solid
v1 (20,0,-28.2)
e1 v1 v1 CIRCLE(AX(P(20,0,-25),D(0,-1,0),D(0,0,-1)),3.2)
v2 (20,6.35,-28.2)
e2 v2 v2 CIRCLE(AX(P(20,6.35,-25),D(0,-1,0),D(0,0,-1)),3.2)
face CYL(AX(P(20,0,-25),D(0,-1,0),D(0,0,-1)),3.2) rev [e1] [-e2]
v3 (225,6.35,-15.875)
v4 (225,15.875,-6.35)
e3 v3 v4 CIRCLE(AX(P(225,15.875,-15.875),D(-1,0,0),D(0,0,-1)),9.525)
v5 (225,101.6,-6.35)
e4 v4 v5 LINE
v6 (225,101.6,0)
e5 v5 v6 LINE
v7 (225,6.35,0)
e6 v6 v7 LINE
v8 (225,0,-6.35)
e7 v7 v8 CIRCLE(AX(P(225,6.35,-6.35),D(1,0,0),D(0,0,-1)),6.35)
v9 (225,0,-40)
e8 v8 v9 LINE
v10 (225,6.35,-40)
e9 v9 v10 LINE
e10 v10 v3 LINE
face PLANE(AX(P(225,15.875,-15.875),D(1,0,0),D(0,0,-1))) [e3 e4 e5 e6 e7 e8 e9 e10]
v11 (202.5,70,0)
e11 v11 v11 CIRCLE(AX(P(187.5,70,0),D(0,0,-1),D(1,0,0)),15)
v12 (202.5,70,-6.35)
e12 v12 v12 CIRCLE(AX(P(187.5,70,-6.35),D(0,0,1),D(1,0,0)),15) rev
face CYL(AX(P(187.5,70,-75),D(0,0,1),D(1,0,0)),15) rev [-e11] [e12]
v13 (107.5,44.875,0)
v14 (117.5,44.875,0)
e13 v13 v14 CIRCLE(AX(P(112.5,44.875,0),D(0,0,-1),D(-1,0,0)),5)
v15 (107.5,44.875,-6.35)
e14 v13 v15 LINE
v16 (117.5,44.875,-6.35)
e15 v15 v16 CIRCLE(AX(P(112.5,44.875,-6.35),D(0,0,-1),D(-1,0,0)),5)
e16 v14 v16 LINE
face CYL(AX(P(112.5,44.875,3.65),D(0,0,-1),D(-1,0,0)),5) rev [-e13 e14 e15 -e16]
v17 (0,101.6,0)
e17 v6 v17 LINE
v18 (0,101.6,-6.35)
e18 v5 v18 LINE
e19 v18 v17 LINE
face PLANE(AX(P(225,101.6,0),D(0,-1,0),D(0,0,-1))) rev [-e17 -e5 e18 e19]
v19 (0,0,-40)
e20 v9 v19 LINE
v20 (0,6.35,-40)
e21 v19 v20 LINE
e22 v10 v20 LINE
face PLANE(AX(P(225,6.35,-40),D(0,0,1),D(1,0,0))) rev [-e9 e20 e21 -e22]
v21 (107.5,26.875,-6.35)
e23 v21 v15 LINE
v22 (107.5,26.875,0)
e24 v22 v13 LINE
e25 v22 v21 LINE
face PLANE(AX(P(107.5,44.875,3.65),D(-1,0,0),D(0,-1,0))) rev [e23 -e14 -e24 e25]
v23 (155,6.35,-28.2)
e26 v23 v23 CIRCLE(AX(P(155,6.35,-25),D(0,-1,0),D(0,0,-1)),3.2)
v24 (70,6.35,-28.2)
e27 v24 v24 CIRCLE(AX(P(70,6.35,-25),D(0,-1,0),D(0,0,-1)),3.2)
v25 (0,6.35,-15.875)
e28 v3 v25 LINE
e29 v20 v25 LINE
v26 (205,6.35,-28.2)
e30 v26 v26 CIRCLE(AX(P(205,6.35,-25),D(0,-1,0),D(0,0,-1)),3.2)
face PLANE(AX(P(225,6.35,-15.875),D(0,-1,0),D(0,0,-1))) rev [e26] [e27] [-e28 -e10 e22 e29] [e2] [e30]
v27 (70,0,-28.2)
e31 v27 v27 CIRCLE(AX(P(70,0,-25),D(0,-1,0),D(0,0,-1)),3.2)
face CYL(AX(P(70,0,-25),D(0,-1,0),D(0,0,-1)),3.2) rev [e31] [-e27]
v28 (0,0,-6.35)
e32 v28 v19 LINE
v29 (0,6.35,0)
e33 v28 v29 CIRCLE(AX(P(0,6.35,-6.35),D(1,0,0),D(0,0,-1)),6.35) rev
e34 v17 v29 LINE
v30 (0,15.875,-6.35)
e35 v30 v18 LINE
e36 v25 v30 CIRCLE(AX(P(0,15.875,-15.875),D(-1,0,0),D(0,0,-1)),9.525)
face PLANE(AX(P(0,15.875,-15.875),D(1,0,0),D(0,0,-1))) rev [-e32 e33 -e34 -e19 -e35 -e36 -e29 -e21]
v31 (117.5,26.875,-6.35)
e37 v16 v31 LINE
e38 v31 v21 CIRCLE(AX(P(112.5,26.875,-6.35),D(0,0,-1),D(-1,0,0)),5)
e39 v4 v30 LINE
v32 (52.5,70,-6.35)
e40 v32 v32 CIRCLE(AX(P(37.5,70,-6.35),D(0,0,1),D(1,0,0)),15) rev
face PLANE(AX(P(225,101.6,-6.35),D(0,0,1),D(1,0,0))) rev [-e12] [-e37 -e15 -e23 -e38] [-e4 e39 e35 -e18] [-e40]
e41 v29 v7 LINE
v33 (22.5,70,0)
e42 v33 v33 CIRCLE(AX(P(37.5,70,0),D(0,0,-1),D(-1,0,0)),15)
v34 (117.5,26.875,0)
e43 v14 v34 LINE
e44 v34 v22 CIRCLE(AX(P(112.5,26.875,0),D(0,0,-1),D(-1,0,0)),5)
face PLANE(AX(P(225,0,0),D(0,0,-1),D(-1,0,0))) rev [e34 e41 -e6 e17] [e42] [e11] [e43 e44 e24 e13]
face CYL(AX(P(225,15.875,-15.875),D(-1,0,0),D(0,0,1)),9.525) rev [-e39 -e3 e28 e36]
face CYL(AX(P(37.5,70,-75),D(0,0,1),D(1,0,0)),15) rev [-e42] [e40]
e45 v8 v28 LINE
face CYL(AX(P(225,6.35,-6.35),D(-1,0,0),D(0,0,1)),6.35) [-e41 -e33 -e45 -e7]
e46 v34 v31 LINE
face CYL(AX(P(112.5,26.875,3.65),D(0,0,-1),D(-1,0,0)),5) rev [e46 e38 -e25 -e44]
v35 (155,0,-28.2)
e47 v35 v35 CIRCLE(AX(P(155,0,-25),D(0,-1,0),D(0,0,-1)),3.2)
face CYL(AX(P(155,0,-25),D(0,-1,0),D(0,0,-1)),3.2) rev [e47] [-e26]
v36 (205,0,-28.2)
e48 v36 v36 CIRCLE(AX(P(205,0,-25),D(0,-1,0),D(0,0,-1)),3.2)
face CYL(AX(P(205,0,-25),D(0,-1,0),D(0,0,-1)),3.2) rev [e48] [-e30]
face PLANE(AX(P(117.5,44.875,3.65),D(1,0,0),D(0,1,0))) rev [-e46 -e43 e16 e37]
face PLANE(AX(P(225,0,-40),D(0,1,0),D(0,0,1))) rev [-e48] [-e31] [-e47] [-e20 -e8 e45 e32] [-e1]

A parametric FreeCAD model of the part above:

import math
import FreeCAD as App
import Part
import Sketcher

V = App.Vector


def edges_at(feature, points):
    """Names of the edges that pass closest to the given points."""
    edges = feature.Shape.Edges
    near = lambda p: min(range(len(edges)), key=lambda i: edges[i].distToShape(Part.Vertex(*p))[0])
    return sorted({f"Edge{near(p) + 1}" for p in points})

doc = App.newDocument("Part")
body = doc.addObject("PartDesign::Body", "Body")

# Sketch on YZ plane
sketch1 = body.newObject("Sketcher::SketchObject", "Sketch")
sketch1.AttachmentSupport = (doc.getObject("YZ_Plane"), [""])
sketch1.MapMode = "FlatFace"
sketch1.addGeometry(Part.LineSegment(V(102, 0, 0), V(0, 0, 0)), False)
sketch1.addGeometry(Part.LineSegment(V(0, 0, 0), V(0, -40, 0)), False)
sketch1.addGeometry(Part.LineSegment(V(0, -40, 0), V(6, -40, 0)), False)
sketch1.addGeometry(Part.LineSegment(V(6, -40, 0), V(6, -16, 0)), False)
sketch1.addGeometry(Part.ArcOfCircle(Part.Circle(V(16, -16, 0), V(0, 0, 1), 10), math.radians(90), math.radians(180)), False)
sketch1.addGeometry(Part.LineSegment(V(16, -6, 0), V(102, -6, 0)), False)
sketch1.addGeometry(Part.LineSegment(V(102, -6, 0), V(102, 0, 0)), False)
sketch1.addConstraint(Sketcher.Constraint("Coincident", 0, 2, 1, 1))
sketch1.addConstraint(Sketcher.Constraint("Coincident", 1, 2, 2, 1))
sketch1.addConstraint(Sketcher.Constraint("Coincident", 2, 2, 3, 1))
sketch1.addConstraint(Sketcher.Constraint("Tangent", 3, 2, 4, 2))
sketch1.addConstraint(Sketcher.Constraint("Tangent", 4, 1, 5, 1))
sketch1.addConstraint(Sketcher.Constraint("Coincident", 5, 2, 6, 1))
sketch1.addConstraint(Sketcher.Constraint("Coincident", 6, 2, 0, 1))
sketch1.addConstraint(Sketcher.Constraint("Horizontal", 0))
sketch1.addConstraint(Sketcher.Constraint("Vertical", 1))
sketch1.addConstraint(Sketcher.Constraint("Horizontal", 2))
sketch1.addConstraint(Sketcher.Constraint("Vertical", 3))
sketch1.addConstraint(Sketcher.Constraint("Horizontal", 5))
sketch1.addConstraint(Sketcher.Constraint("Vertical", 6))
sketch1.addConstraint(Sketcher.Constraint("Coincident", 0, 2, -1, 1))
sketch1.addConstraint(Sketcher.Constraint("Equal", 2, 6))
sketch1.addConstraint(Sketcher.Constraint("DistanceY", 1, 2, 1, 1, 40.0))
sketch1.addConstraint(Sketcher.Constraint("DistanceX", 0, 2, 0, 1, 101.6))
sketch1.addConstraint(Sketcher.Constraint("Radius", 4, 9.525))
sketch1.addConstraint(Sketcher.Constraint("DistanceX", 2, 1, 2, 2, 6.35))
pad1 = body.newObject("PartDesign::Pad", "Pad")
pad1.Profile = sketch1
pad1.Length = 225
doc.recompute()

fillet = body.newObject("PartDesign::Fillet", "Fillet")
fillet.Base = (pad1, edges_at(pad1, [(112.5, 0, 0)]))
fillet.Radius = 6.35

# Sketch on XY plane
sketch2 = body.newObject("Sketcher::SketchObject", "Sketch001")
sketch2.AttachmentSupport = (doc.getObject("XY_Plane"), [""])
sketch2.MapMode = "FlatFace"
sketch2.addGeometry(Part.Circle(V(38, 70, 0), V(0, 0, 1), 15), False)
sketch2.addGeometry(Part.Circle(V(188, 70, 0), V(0, 0, 1), 15), False)
sketch2.addConstraint(Sketcher.Constraint("Equal", 0, 1))
sketch2.addConstraint(Sketcher.Constraint("Horizontal", 0, 3, 1, 3))
sketch2.addConstraint(Sketcher.Constraint("Diameter", 0, 30.0))
sketch2.addConstraint(Sketcher.Constraint("DistanceY", -1, 1, 0, 3, 70.0))
sketch2.addConstraint(Sketcher.Constraint("DistanceX", 0, 3, 1, 3, 150.0))
sketch2.addConstraint(Sketcher.Constraint("DistanceX", -1, 1, 0, 3, 37.5))
pocket1 = body.newObject("PartDesign::Pocket", "Pocket")
pocket1.Profile = sketch2
pocket1.Length = 75

# Sketch on XY plane
sketch3 = body.newObject("Sketcher::SketchObject", "Sketch002")
sketch3.AttachmentSupport = (doc.getObject("XY_Plane"), [""])
sketch3.MapMode = "FlatFace"
sketch3.AttachmentOffset = App.Placement(V(0, 0, -6.35), App.Rotation())
sketch3.addGeometry(Part.LineSegment(V(108, 27, 0), V(108, 45, 0)), False)
sketch3.addGeometry(Part.ArcOfCircle(Part.Circle(V(112, 45, 0), V(0, 0, 1), 5), math.radians(0), math.radians(180)), False)
sketch3.addGeometry(Part.LineSegment(V(118, 45, 0), V(118, 27, 0)), False)
sketch3.addGeometry(Part.ArcOfCircle(Part.Circle(V(112, 27, 0), V(0, 0, 1), 5), math.radians(180), math.radians(360)), False)
sketch3.addConstraint(Sketcher.Constraint("Tangent", 0, 2, 1, 2))
sketch3.addConstraint(Sketcher.Constraint("Tangent", 1, 1, 2, 1))
sketch3.addConstraint(Sketcher.Constraint("Tangent", 2, 2, 3, 2))
sketch3.addConstraint(Sketcher.Constraint("Tangent", 3, 1, 0, 1))
sketch3.addConstraint(Sketcher.Constraint("Vertical", 0))
sketch3.addConstraint(Sketcher.Constraint("Vertical", 2))
sketch3.addConstraint(Sketcher.Constraint("Radius", 1, 5.0))
sketch3.addConstraint(Sketcher.Constraint("DistanceY", 0, 1, 0, 2, 18.0))
sketch3.addConstraint(Sketcher.Constraint("DistanceX", -1, 1, 1, 3, 112.5))
sketch3.addConstraint(Sketcher.Constraint("DistanceY", -1, 1, 1, 3, 44.875))
pocket2 = body.newObject("PartDesign::Pocket", "Pocket001")
pocket2.Profile = sketch3
pocket2.Length = 10
pocket2.Reversed = True

# Sketch on XZ plane
sketch4 = body.newObject("Sketcher::SketchObject", "Sketch003")
sketch4.AttachmentSupport = (doc.getObject("XZ_Plane"), [""])
sketch4.MapMode = "FlatFace"
sketch4.addGeometry(Part.Circle(V(20, -25, 0), V(0, 0, 1), 3.2), False)
sketch4.addGeometry(Part.Circle(V(70, -25, 0), V(0, 0, 1), 3.2), False)
sketch4.addGeometry(Part.Circle(V(155, -25, 0), V(0, 0, 1), 3.2), False)
sketch4.addGeometry(Part.Circle(V(205, -25, 0), V(0, 0, 1), 3.2), False)
sketch4.addConstraint(Sketcher.Constraint("Equal", 0, 1))
sketch4.addConstraint(Sketcher.Constraint("Equal", 1, 2))
sketch4.addConstraint(Sketcher.Constraint("Equal", 2, 3))
sketch4.addConstraint(Sketcher.Constraint("Horizontal", 0, 3, 1, 3))
sketch4.addConstraint(Sketcher.Constraint("Horizontal", 1, 3, 2, 3))
sketch4.addConstraint(Sketcher.Constraint("Horizontal", 2, 3, 3, 3))
sketch4.addConstraint(Sketcher.Constraint("Diameter", 0, 6.4))
sketch4.addConstraint(Sketcher.Constraint("DistanceX", -1, 1, 0, 3, 20.0))
sketch4.addConstraint(Sketcher.Constraint("DistanceY", 0, 3, -1, 1, 25.0))
sketch4.addConstraint(Sketcher.Constraint("DistanceX", -1, 1, 1, 3, 70.0))
sketch4.addConstraint(Sketcher.Constraint("DistanceX", -1, 1, 2, 3, 155.0))
sketch4.addConstraint(Sketcher.Constraint("DistanceX", -1, 1, 3, 3, 205.0))
doc.recompute()
hole = body.newObject("PartDesign::Hole", "Hole")
hole.Profile = sketch4
hole.ThreadType = "None"
hole.Diameter = 6.4
hole.DepthType = "ThroughAll"

doc.recompute()
